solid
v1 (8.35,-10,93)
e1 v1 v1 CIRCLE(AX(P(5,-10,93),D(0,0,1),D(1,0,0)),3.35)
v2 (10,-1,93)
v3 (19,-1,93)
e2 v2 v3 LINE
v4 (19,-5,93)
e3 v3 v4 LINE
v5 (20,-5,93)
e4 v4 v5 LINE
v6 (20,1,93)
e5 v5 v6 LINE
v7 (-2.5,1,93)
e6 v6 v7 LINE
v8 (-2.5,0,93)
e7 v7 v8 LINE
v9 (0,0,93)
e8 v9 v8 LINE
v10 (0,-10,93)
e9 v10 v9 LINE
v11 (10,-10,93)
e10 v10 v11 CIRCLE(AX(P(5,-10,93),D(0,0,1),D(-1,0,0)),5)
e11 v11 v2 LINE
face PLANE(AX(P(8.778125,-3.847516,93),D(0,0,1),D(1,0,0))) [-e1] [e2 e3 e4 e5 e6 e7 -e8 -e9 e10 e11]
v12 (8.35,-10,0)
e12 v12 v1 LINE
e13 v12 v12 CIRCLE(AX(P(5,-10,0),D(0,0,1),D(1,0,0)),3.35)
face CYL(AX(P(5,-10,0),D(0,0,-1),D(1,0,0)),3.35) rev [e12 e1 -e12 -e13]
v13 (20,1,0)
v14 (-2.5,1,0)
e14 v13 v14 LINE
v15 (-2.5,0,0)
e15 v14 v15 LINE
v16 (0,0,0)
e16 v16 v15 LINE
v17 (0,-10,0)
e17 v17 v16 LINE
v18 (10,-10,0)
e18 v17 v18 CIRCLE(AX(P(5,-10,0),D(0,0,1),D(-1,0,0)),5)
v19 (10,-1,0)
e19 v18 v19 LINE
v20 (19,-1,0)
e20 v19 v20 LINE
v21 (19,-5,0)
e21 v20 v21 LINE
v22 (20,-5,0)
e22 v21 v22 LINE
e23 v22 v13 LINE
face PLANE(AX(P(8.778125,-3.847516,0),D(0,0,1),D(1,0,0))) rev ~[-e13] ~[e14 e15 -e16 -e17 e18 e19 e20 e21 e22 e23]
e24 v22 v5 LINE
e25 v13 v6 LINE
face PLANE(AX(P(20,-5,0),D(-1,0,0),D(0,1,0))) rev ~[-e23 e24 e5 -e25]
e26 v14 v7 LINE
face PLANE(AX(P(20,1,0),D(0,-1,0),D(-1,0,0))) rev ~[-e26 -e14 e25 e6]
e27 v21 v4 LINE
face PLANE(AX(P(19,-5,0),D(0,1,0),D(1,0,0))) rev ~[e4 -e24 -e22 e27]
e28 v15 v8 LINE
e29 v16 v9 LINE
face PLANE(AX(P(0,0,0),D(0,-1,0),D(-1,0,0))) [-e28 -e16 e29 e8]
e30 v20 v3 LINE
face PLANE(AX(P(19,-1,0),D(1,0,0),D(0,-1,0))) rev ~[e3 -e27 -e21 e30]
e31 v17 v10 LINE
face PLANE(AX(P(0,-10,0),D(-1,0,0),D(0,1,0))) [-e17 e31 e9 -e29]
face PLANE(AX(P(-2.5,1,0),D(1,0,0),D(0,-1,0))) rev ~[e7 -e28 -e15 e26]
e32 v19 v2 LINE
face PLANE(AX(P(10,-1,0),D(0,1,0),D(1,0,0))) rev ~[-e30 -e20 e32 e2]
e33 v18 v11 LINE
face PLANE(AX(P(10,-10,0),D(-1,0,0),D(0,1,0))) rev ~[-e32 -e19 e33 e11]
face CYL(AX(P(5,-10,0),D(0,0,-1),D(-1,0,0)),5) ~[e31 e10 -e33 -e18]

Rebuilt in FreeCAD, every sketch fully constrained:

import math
import FreeCAD as App
import Part
import Sketcher

V = App.Vector

doc = App.newDocument("Part")
body = doc.addObject("PartDesign::Body", "Body")

sketch1 = doc.addObject("Sketcher::SketchObject", "Sketch")
body.addObject(sketch1)
sketch1.AttachmentSupport = (doc.XY_Plane, [""])
sketch1.MapMode = "FlatFace"
sketch1.addGeometry(Part.LineSegment(V(20, 1, 0), V(-2.5, 1, 0)), False)
sketch1.addGeometry(Part.LineSegment(V(-2.5, 1, 0), V(-2.5, 0, 0)), False)
sketch1.addGeometry(Part.LineSegment(V(-2.5, 0, 0), V(0, 0, 0)), False)
sketch1.addGeometry(Part.LineSegment(V(0, 0, 0), V(0, -10, 0)), False)
sketch1.addGeometry(Part.ArcOfCircle(Part.Circle(V(5, -10, 0), V(0, 0, 1), 5), math.radians(180), math.radians(360)), False)
sketch1.addGeometry(Part.LineSegment(V(10, -10, 0), V(10, -1, 0)), False)
sketch1.addGeometry(Part.LineSegment(V(10, -1, 0), V(19, -1, 0)), False)
sketch1.addGeometry(Part.LineSegment(V(19, -1, 0), V(19, -5, 0)), False)
sketch1.addGeometry(Part.LineSegment(V(19, -5, 0), V(20, -5, 0)), False)
sketch1.addGeometry(Part.LineSegment(V(20, -5, 0), V(20, 1, 0)), False)
sketch1.addGeometry(Part.Circle(V(5, -10, 0), V(0, 0, 1), 3.4), False)
sketch1.addConstraint(Sketcher.Constraint("Coincident", 0, 2, 1, 1))
sketch1.addConstraint(Sketcher.Constraint("Coincident", 1, 2, 2, 1))
sketch1.addConstraint(Sketcher.Constraint("Coincident", 2, 2, 3, 1))
sketch1.addConstraint(Sketcher.Constraint("Tangent", 3, 2, 4, 1))
sketch1.addConstraint(Sketcher.Constraint("Tangent", 4, 2, 5, 1))
sketch1.addConstraint(Sketcher.Constraint("Coincident", 5, 2, 6, 1))
sketch1.addConstraint(Sketcher.Constraint("Coincident", 6, 2, 7, 1))
sketch1.addConstraint(Sketcher.Constraint("Coincident", 7, 2, 8, 1))
sketch1.addConstraint(Sketcher.Constraint("Coincident", 8, 2, 9, 1))
sketch1.addConstraint(Sketcher.Constraint("Coincident", 9, 2, 0, 1))
sketch1.addConstraint(Sketcher.Constraint("Horizontal", 0))
sketch1.addConstraint(Sketcher.Constraint("Vertical", 1))
sketch1.addConstraint(Sketcher.Constraint("Horizontal", 2))
sketch1.addConstraint(Sketcher.Constraint("Vertical", 3))
sketch1.addConstraint(Sketcher.Constraint("Vertical", 5))
sketch1.addConstraint(Sketcher.Constraint("Horizontal", 6))
sketch1.addConstraint(Sketcher.Constraint("Vertical", 7))
sketch1.addConstraint(Sketcher.Constraint("Horizontal", 8))
sketch1.addConstraint(Sketcher.Constraint("Vertical", 9))
sketch1.addConstraint(Sketcher.Constraint("Coincident", 2, 2, -1, 1))
sketch1.addConstraint(Sketcher.Constraint("Coincident", 10, 3, 4, 3))
sketch1.addConstraint(Sketcher.Constraint("Equal", 8, 1))
sketch1.addConstraint(Sketcher.Constraint("Equal", 6, 5))
sketch1.addConstraint(Sketcher.Constraint("Radius", 4, 5.0))
sketch1.addConstraint(Sketcher.Constraint("Diameter", 10, 6.7))
sketch1.addConstraint(Sketcher.Constraint("DistanceX", 6, 1, 6, 2, 9.0))
sketch1.addConstraint(Sketcher.Constraint("DistanceX", 8, 1, 8, 2, 1.0))
sketch1.addConstraint(Sketcher.Constraint("DistanceY", 3, 2, 3, 1, 10.0))
sketch1.addConstraint(Sketcher.Constraint("DistanceY", 7, 2, 7, 1, 4.0))
sketch1.addConstraint(Sketcher.Constraint("DistanceX", 0, 2, 0, 1, 22.5))
pad1 = doc.addObject("PartDesign::Pad", "Pad")
body.addObject(pad1)
pad1.Profile = sketch1
pad1.Length = 93

doc.recompute()
